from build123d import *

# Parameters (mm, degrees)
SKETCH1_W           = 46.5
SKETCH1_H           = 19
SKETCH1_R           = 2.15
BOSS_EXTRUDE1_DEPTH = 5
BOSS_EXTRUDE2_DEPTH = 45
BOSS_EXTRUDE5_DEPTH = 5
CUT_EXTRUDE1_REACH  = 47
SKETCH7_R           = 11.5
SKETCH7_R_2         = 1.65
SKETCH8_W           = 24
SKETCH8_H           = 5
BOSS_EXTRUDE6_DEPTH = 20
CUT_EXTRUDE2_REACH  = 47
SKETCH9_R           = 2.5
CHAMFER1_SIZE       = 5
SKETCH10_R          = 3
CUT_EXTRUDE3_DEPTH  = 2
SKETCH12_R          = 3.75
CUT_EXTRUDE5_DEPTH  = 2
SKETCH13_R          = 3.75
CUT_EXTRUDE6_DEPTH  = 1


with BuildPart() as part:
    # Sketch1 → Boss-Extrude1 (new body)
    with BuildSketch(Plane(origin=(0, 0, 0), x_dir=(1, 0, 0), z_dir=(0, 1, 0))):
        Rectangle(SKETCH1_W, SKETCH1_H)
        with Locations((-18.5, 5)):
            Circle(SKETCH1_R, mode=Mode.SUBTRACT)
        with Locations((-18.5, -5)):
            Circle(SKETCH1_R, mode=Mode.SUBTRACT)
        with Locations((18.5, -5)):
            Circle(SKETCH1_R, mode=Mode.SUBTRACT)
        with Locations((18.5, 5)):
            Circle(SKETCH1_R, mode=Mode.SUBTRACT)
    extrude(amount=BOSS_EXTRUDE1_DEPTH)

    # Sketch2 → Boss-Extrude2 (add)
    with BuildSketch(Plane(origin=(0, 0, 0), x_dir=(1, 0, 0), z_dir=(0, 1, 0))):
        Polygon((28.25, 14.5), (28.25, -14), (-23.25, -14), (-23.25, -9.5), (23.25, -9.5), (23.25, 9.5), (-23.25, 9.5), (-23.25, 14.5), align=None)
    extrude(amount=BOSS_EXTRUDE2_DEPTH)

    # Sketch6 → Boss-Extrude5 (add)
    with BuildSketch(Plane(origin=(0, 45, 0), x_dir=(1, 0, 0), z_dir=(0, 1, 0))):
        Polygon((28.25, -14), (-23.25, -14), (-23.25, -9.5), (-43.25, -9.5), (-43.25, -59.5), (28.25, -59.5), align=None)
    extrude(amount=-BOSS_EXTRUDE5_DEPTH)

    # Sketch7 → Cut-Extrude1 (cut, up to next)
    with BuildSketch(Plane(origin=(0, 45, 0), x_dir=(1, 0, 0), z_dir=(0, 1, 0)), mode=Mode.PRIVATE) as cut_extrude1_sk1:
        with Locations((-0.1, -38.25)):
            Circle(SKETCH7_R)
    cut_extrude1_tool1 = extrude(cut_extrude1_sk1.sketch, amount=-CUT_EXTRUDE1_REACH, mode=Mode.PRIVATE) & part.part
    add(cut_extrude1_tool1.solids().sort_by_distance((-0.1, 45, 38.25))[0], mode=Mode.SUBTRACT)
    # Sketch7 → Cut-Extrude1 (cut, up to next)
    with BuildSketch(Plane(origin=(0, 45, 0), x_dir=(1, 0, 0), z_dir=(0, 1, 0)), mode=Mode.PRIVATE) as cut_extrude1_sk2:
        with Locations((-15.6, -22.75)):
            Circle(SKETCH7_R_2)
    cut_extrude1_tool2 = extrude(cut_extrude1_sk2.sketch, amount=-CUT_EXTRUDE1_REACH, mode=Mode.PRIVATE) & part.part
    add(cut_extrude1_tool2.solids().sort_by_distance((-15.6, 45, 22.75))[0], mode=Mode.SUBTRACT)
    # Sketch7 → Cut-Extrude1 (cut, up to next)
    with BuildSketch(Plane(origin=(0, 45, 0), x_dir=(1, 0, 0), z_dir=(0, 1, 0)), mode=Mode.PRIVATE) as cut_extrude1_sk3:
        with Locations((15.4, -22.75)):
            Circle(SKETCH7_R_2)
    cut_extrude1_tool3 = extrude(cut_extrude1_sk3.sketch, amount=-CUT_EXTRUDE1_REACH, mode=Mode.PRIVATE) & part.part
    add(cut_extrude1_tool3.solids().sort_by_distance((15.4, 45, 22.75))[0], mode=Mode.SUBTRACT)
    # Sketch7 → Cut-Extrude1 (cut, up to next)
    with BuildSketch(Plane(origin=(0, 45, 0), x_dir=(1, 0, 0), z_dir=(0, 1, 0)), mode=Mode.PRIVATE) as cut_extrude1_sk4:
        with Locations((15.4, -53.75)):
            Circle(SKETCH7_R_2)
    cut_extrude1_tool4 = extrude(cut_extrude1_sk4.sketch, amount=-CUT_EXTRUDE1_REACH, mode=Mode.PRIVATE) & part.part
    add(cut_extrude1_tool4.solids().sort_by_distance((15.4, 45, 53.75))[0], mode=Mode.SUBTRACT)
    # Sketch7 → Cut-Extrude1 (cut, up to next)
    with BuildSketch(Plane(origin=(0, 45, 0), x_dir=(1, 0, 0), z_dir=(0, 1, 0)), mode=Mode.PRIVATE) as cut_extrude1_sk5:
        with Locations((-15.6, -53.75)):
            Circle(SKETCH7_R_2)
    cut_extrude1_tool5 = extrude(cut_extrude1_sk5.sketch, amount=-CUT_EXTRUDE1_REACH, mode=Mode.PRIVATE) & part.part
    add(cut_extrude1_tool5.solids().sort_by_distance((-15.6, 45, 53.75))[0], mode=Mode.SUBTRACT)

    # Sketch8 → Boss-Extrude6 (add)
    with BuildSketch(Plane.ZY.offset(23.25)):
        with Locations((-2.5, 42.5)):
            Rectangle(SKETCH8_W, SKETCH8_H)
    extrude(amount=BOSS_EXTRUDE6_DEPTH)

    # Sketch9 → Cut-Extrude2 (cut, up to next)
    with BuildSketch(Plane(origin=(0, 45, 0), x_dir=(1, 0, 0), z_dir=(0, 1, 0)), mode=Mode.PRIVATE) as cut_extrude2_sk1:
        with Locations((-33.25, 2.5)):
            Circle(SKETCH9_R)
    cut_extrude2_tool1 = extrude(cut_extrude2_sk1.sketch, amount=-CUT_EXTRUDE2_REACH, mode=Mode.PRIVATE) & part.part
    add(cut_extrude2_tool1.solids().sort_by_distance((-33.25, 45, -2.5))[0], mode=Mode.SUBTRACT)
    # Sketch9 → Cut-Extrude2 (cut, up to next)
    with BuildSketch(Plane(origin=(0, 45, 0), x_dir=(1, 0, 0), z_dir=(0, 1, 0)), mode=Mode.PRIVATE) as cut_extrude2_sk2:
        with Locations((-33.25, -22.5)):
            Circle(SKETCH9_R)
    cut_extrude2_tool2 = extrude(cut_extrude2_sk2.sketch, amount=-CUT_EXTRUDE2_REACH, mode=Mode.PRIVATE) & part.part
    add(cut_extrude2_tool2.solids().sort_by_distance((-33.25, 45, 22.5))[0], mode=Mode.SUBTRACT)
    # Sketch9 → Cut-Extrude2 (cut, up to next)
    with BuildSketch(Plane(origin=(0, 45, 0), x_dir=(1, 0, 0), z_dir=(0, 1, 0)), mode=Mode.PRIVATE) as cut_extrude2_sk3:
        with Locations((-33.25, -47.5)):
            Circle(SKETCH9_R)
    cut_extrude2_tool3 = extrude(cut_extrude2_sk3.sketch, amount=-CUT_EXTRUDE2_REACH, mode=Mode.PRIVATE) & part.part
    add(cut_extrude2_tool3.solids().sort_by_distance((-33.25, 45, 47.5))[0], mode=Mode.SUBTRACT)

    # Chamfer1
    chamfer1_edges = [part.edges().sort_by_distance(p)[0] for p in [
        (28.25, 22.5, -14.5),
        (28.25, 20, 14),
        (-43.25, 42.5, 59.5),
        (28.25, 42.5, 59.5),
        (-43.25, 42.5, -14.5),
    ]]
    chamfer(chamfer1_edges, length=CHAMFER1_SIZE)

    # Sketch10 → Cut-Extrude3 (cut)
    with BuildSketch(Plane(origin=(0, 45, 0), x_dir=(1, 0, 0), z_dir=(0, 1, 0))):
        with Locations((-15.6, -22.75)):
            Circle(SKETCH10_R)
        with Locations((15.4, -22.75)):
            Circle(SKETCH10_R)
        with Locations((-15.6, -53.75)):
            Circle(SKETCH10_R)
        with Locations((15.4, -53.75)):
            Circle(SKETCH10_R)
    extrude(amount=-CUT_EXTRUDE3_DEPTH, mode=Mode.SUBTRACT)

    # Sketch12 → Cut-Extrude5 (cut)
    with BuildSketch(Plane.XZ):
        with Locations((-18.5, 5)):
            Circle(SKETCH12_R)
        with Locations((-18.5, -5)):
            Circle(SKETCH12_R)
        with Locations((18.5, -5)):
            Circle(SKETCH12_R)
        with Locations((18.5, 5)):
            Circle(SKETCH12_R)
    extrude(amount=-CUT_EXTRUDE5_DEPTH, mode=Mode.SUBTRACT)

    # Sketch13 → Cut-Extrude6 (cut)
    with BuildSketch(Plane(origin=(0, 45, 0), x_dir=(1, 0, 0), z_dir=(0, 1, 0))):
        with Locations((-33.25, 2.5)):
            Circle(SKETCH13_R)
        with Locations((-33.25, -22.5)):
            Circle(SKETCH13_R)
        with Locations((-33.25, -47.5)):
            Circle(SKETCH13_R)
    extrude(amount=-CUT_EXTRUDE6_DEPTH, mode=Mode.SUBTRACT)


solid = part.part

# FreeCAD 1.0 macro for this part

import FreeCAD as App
import Part
import Sketcher
from FreeCAD import Vector


def edges_at(feature, points):
    """Names of the edges that pass closest to the given points."""
    edges = feature.Shape.Edges
    near = lambda p: min(range(len(edges)), key=lambda i: edges[i].distToShape(Part.Vertex(*p))[0])
    return sorted({f"Edge{near(p) + 1}" for p in points})

doc = App.newDocument("Part")
body = doc.addObject("PartDesign::Body", "Body")

# Sketch on XZ plane
sketch1 = body.newObject("Sketcher::SketchObject", "Sketch")
sketch1.AttachmentSupport = (doc.getObject("XZ_Plane"), [""])
sketch1.MapMode = "FlatFace"
sketch1.addGeometry([
    Part.LineSegment(Vector(-23.2, -9.5, 0), Vector(-23.2, 9.5, 0)),  # 0
    Part.LineSegment(Vector(-23.2, 9.5, 0), Vector(23.2, 9.5, 0)),  # 1
    Part.LineSegment(Vector(23.2, 9.5, 0), Vector(23.2, -9.5, 0)),  # 2
    Part.LineSegment(Vector(23.2, -9.5, 0), Vector(-23.2, -9.5, 0)),  # 3
    Part.Circle(Vector(-18.5, 5, 0), Vector(0, 0, 1), 2.1),  # 4
    Part.Circle(Vector(18.5, 5, 0), Vector(0, 0, 1), 2.1),  # 5
    Part.Circle(Vector(-18.5, -5, 0), Vector(0, 0, 1), 2.1),  # 6
    Part.Circle(Vector(18.5, -5, 0), Vector(0, 0, 1), 2.1),  # 7
], False)
sketch1.addConstraint([
    Sketcher.Constraint("Coincident", 0, 2, 1, 1),
    Sketcher.Constraint("Coincident", 1, 2, 2, 1),
    Sketcher.Constraint("Coincident", 2, 2, 3, 1),
    Sketcher.Constraint("Coincident", 3, 2, 0, 1),
    Sketcher.Constraint("Vertical", 0),
    Sketcher.Constraint("Horizontal", 1),
    Sketcher.Constraint("Vertical", 2),
    Sketcher.Constraint("Horizontal", 3),
    Sketcher.Constraint("Equal", 4, 5),
    Sketcher.Constraint("Equal", 5, 6),
    Sketcher.Constraint("Equal", 6, 7),
    Sketcher.Constraint("Symmetric", 5, 3, 6, 3, -1, 1),
    Sketcher.Constraint("Symmetric", 4, 3, 7, 3, -1, 1),
    Sketcher.Constraint("Symmetric", 0, 2, 2, 2, -1, 1),
    Sketcher.Constraint("Symmetric", 4, 3, 5, 3, -2),
    Sketcher.Constraint("Diameter", 4, 4.3),
    Sketcher.Constraint("DistanceY", 0, 1, 0, 2, 19.0),
    Sketcher.Constraint("DistanceX", 1, 1, 1, 2, 46.5),
    Sketcher.Constraint("DistanceY", -1, 1, 4, 3, 5.0),
    Sketcher.Constraint("DistanceX", 4, 3, 5, 3, 37.0),
])
pad1 = body.newObject("PartDesign::Pad", "Pad")
pad1.Profile = sketch1
pad1.Length = 5
pad1.Reversed = True

# Sketch on XZ plane
sketch2 = body.newObject("Sketcher::SketchObject", "Sketch001")
sketch2.AttachmentSupport = (doc.getObject("XZ_Plane"), [""])
sketch2.MapMode = "FlatFace"
sketch2.addGeometry([
    Part.LineSegment(Vector(28.2, 14, 0), Vector(28.2, -14.5, 0)),  # 0
    Part.LineSegment(Vector(28.2, -14.5, 0), Vector(-23.2, -14.5, 0)),  # 1
    Part.LineSegment(Vector(-23.2, -14.5, 0), Vector(-23.2, -9.5, 0)),  # 2
    Part.LineSegment(Vector(-23.2, -9.5, 0), Vector(23.2, -9.5, 0)),  # 3
    Part.LineSegment(Vector(23.2, -9.5, 0), Vector(23.2, 9.5, 0)),  # 4
    Part.LineSegment(Vector(23.2, 9.5, 0), Vector(-23.2, 9.5, 0)),  # 5
    Part.LineSegment(Vector(-23.2, 9.5, 0), Vector(-23.2, 14, 0)),  # 6
    Part.LineSegment(Vector(-23.2, 14, 0), Vector(28.2, 14, 0)),  # 7
], False)
sketch2.addConstraint([
    Sketcher.Constraint("Coincident", 0, 2, 1, 1),
    Sketcher.Constraint("Coincident", 1, 2, 2, 1),
    Sketcher.Constraint("Coincident", 2, 2, 3, 1),
    Sketcher.Constraint("Coincident", 3, 2, 4, 1),
    Sketcher.Constraint("Coincident", 4, 2, 5, 1),
    Sketcher.Constraint("Coincident", 5, 2, 6, 1),
    Sketcher.Constraint("Coincident", 6, 2, 7, 1),
    Sketcher.Constraint("Coincident", 7, 2, 0, 1),
    Sketcher.Constraint("Vertical", 0),
    Sketcher.Constraint("Horizontal", 1),
    Sketcher.Constraint("Vertical", 2),
    Sketcher.Constraint("Horizontal", 3),
    Sketcher.Constraint("Vertical", 4),
    Sketcher.Constraint("Horizontal", 5),
    Sketcher.Constraint("Vertical", 6),
    Sketcher.Constraint("Horizontal", 7),
    Sketcher.Constraint("Symmetric", 2, 2, 4, 2, -1, 1),
    Sketcher.Constraint("Vertical", 2, 2, 5, 2),
    Sketcher.Constraint("DistanceY", 2, 1, 2, 2, 5.0),
    Sketcher.Constraint("DistanceY", 4, 1, 4, 2, 19.0),
    Sketcher.Constraint("DistanceX", 1, 2, 1, 1, 51.5),
    Sketcher.Constraint("DistanceX", 3, 1, 3, 2, 46.5),
    Sketcher.Constraint("DistanceY", 0, 2, 0, 1, 28.5),
])
pad2 = body.newObject("PartDesign::Pad", "Pad001")
pad2.Profile = sketch2
pad2.Length = 45
pad2.Reversed = True

# Sketch on XZ plane
sketch3 = body.newObject("Sketcher::SketchObject", "Sketch002")
sketch3.AttachmentSupport = (doc.getObject("XZ_Plane"), [""])
sketch3.MapMode = "FlatFace"
sketch3.AttachmentOffset = App.Placement(Vector(0, 0, -45), App.Rotation())
sketch3.addGeometry([
    Part.LineSegment(Vector(28.2, 14, 0), Vector(-23.2, 14, 0)),  # 0
    Part.LineSegment(Vector(-23.2, 14, 0), Vector(-23.2, 9.5, 0)),  # 1
    Part.LineSegment(Vector(-23.2, 9.5, 0), Vector(-43.2, 9.5, 0)),  # 2
    Part.LineSegment(Vector(-43.2, 9.5, 0), Vector(-43.2, 59.5, 0)),  # 3
    Part.LineSegment(Vector(-43.2, 59.5, 0), Vector(28.2, 59.5, 0)),  # 4
    Part.LineSegment(Vector(28.2, 59.5, 0), Vector(28.2, 14, 0)),  # 5
], False)
sketch3.addConstraint([
    Sketcher.Constraint("Coincident", 0, 2, 1, 1),
    Sketcher.Constraint("Coincident", 1, 2, 2, 1),
    Sketcher.Constraint("Coincident", 2, 2, 3, 1),
    Sketcher.Constraint("Coincident", 3, 2, 4, 1),
    Sketcher.Constraint("Coincident", 4, 2, 5, 1),
    Sketcher.Constraint("Coincident", 5, 2, 0, 1),
    Sketcher.Constraint("Horizontal", 0),
    Sketcher.Constraint("Vertical", 1),
    Sketcher.Constraint("Horizontal", 2),
    Sketcher.Constraint("Vertical", 3),
    Sketcher.Constraint("Horizontal", 4),
    Sketcher.Constraint("Vertical", 5),
    Sketcher.Constraint("DistanceX", 2, 2, 2, 1, 20.0),
    Sketcher.Constraint("DistanceY", 3, 1, 3, 2, 50.0),
    Sketcher.Constraint("DistanceX", 0, 2, 0, 1, 51.5),
    Sketcher.Constraint("DistanceY", 1, 2, 1, 1, 4.5),
    Sketcher.Constraint("DistanceY", -1, 1, 0, 2, 14.0),
    Sketcher.Constraint("DistanceX", 0, 2, -1, 1, 23.25),
])
pad3 = body.newObject("PartDesign::Pad", "Pad002")
pad3.Profile = sketch3
pad3.Length = 5

# Sketch on XZ plane
sketch4 = body.newObject("Sketcher::SketchObject", "Sketch003")
sketch4.AttachmentSupport = (doc.getObject("XZ_Plane"), [""])
sketch4.MapMode = "FlatFace"
sketch4.AttachmentOffset = App.Placement(Vector(0, 0, -45), App.Rotation())
sketch4.addGeometry(Part.Circle(Vector(0, 38, 0), Vector(0, 0, 1), 12), False)
sketch4.addConstraint([
    Sketcher.Constraint("Diameter", 0, 23.0),
    Sketcher.Constraint("DistanceX", 0, 3, -1, 1, 0.1),
    Sketcher.Constraint("DistanceY", -1, 1, 0, 3, 38.25),
])
pocket1 = body.newObject("PartDesign::Pocket", "Pocket")
pocket1.Profile = sketch4
pocket1.Type = "UpToFirst"
pocket1.Reversed = True

# Sketch on XZ plane
sketch5 = body.newObject("Sketcher::SketchObject", "Sketch004")
sketch5.AttachmentSupport = (doc.getObject("XZ_Plane"), [""])
sketch5.MapMode = "FlatFace"
sketch5.AttachmentOffset = App.Placement(Vector(0, 0, -45), App.Rotation())
sketch5.addGeometry(Part.Circle(Vector(-15.6, 22.8, 0), Vector(0, 0, 1), 1.6), False)
sketch5.addConstraint([
    Sketcher.Constraint("Diameter", 0, 3.3),
    Sketcher.Constraint("DistanceX", 0, 3, -1, 1, 15.6),
    Sketcher.Constraint("DistanceY", -1, 1, 0, 3, 22.75),
])
pocket2 = body.newObject("PartDesign::Pocket", "Pocket001")
pocket2.Profile = sketch5
pocket2.Type = "UpToFirst"
pocket2.Reversed = True

# Sketch on XZ plane
sketch6 = body.newObject("Sketcher::SketchObject", "Sketch005")
sketch6.AttachmentSupport = (doc.getObject("XZ_Plane"), [""])
sketch6.MapMode = "FlatFace"
sketch6.AttachmentOffset = App.Placement(Vector(0, 0, -45), App.Rotation())
sketch6.addGeometry(Part.Circle(Vector(15.4, 22.8, 0), Vector(0, 0, 1), 1.6), False)
sketch6.addConstraint([
    Sketcher.Constraint("Diameter", 0, 3.3),
    Sketcher.Constraint("DistanceX", -1, 1, 0, 3, 15.4),
    Sketcher.Constraint("DistanceY", -1, 1, 0, 3, 22.75),
])
pocket3 = body.newObject("PartDesign::Pocket", "Pocket002")
pocket3.Profile = sketch6
pocket3.Type = "UpToFirst"
pocket3.Reversed = True

# Sketch on XZ plane
sketch7 = body.newObject("Sketcher::SketchObject", "Sketch006")
sketch7.AttachmentSupport = (doc.getObject("XZ_Plane"), [""])
sketch7.MapMode = "FlatFace"
sketch7.AttachmentOffset = App.Placement(Vector(0, 0, -45), App.Rotation())
sketch7.addGeometry(Part.Circle(Vector(15.4, 53.8, 0), Vector(0, 0, 1), 1.6), False)
sketch7.addConstraint([
    Sketcher.Constraint("Diameter", 0, 3.3),
    Sketcher.Constraint("DistanceX", -1, 1, 0, 3, 15.4),
    Sketcher.Constraint("DistanceY", -1, 1, 0, 3, 53.75),
])
pocket4 = body.newObject("PartDesign::Pocket", "Pocket003")
pocket4.Profile = sketch7
pocket4.Type = "UpToFirst"
pocket4.Reversed = True

# Sketch on XZ plane
sketch8 = body.newObject("Sketcher::SketchObject", "Sketch007")
sketch8.AttachmentSupport = (doc.getObject("XZ_Plane"), [""])
sketch8.MapMode = "FlatFace"
sketch8.AttachmentOffset = App.Placement(Vector(0, 0, -45), App.Rotation())
sketch8.addGeometry(Part.Circle(Vector(-15.6, 53.8, 0), Vector(0, 0, 1), 1.6), False)
sketch8.addConstraint([
    Sketcher.Constraint("Diameter", 0, 3.3),
    Sketcher.Constraint("DistanceX", 0, 3, -1, 1, 15.6),
    Sketcher.Constraint("DistanceY", -1, 1, 0, 3, 53.75),
])
pocket5 = body.newObject("PartDesign::Pocket", "Pocket004")
pocket5.Profile = sketch8
pocket5.Type = "UpToFirst"
pocket5.Reversed = True

# Sketch on YZ plane
sketch9 = body.newObject("Sketcher::SketchObject", "Sketch008")
sketch9.AttachmentSupport = (doc.getObject("YZ_Plane"), [""])
sketch9.MapMode = "FlatFace"
sketch9.AttachmentOffset = App.Placement(Vector(0, 0, -23.25), App.Rotation())
sketch9.addGeometry([
    Part.LineSegment(Vector(45, -14, 0), Vector(40, -14, 0)),
    Part.LineSegment(Vector(40, -14, 0), Vector(40, 10, 0)),
    Part.LineSegment(Vector(40, 10, 0), Vector(45, 10, 0)),
    Part.LineSegment(Vector(45, 10, 0), Vector(45, -14, 0)),
], False)
sketch9.addConstraint([
    Sketcher.Constraint("Coincident", 0, 2, 1, 1),
    Sketcher.Constraint("Coincident", 1, 2, 2, 1),
    Sketcher.Constraint("Coincident", 2, 2, 3, 1),
    Sketcher.Constraint("Coincident", 3, 2, 0, 1),
    Sketcher.Constraint("Horizontal", 0),
    Sketcher.Constraint("Vertical", 1),
    Sketcher.Constraint("Horizontal", 2),
    Sketcher.Constraint("Vertical", 3),
    Sketcher.Constraint("DistanceX", 0, 2, 0, 1, 5.0),
    Sketcher.Constraint("DistanceY", 1, 1, 1, 2, 24.0),
    Sketcher.Constraint("DistanceX", -1, 1, 0, 2, 40.0),
    Sketcher.Constraint("DistanceY", 0, 2, -1, 1, 14.5),
])
pad4 = body.newObject("PartDesign::Pad", "Pad003")
pad4.Profile = sketch9
pad4.Length = 20
pad4.Reversed = True

# Sketch on XZ plane
sketch10 = body.newObject("Sketcher::SketchObject", "Sketch009")
sketch10.AttachmentSupport = (doc.getObject("XZ_Plane"), [""])
sketch10.MapMode = "FlatFace"
sketch10.AttachmentOffset = App.Placement(Vector(0, 0, -45), App.Rotation())
sketch10.addGeometry(Part.Circle(Vector(-33.2, -2.5, 0), Vector(0, 0, 1), 2.5), False)
sketch10.addConstraint([
    Sketcher.Constraint("Diameter", 0, 5.0),
    Sketcher.Constraint("DistanceY", 0, 3, -1, 1, 2.5),
    Sketcher.Constraint("DistanceX", 0, 3, -1, 1, 33.25),
])
pocket6 = body.newObject("PartDesign::Pocket", "Pocket005")
pocket6.Profile = sketch10
pocket6.Type = "UpToFirst"
pocket6.Reversed = True

# Sketch on XZ plane
sketch11 = body.newObject("Sketcher::SketchObject", "Sketch010")
sketch11.AttachmentSupport = (doc.getObject("XZ_Plane"), [""])
sketch11.MapMode = "FlatFace"
sketch11.AttachmentOffset = App.Placement(Vector(0, 0, -45), App.Rotation())
sketch11.addGeometry(Part.Circle(Vector(-33.2, 22.5, 0), Vector(0, 0, 1), 2.5), False)
sketch11.addConstraint([
    Sketcher.Constraint("Diameter", 0, 5.0),
    Sketcher.Constraint("DistanceY", -1, 1, 0, 3, 22.5),
    Sketcher.Constraint("DistanceX", 0, 3, -1, 1, 33.25),
])
pocket7 = body.newObject("PartDesign::Pocket", "Pocket006")
pocket7.Profile = sketch11
pocket7.Type = "UpToFirst"
pocket7.Reversed = True

# Sketch on XZ plane
sketch12 = body.newObject("Sketcher::SketchObject", "Sketch011")
sketch12.AttachmentSupport = (doc.getObject("XZ_Plane"), [""])
sketch12.MapMode = "FlatFace"
sketch12.AttachmentOffset = App.Placement(Vector(0, 0, -45), App.Rotation())
sketch12.addGeometry(Part.Circle(Vector(-33.2, 47.5, 0), Vector(0, 0, 1), 2.5), False)
sketch12.addConstraint([
    Sketcher.Constraint("Diameter", 0, 5.0),
    Sketcher.Constraint("DistanceY", -1, 1, 0, 3, 47.5),
    Sketcher.Constraint("DistanceX", 0, 3, -1, 1, 33.25),
])
pocket8 = body.newObject("PartDesign::Pocket", "Pocket007")
pocket8.Profile = sketch12
pocket8.Type = "UpToFirst"
pocket8.Reversed = True
doc.recompute()

chamfer = body.newObject("PartDesign::Chamfer", "Chamfer")
chamfer.Base = (pocket8, edges_at(pocket8, [
    (28.25, 22.5, -14.5),
    (28.25, 20, 14),
    (-43.25, 42.5, 59.5),
    (28.25, 42.5, 59.5),
    (-43.25, 42.5, -14.5),
]))
chamfer.Size = 5

# Sketch on XZ plane
sketch13 = body.newObject("Sketcher::SketchObject", "Sketch012")
sketch13.AttachmentSupport = (doc.getObject("XZ_Plane"), [""])
sketch13.MapMode = "FlatFace"
sketch13.AttachmentOffset = App.Placement(Vector(0, 0, -45), App.Rotation())
sketch13.addGeometry([
    Part.Circle(Vector(-15.6, 22.8, 0), Vector(0, 0, 1), 3),
    Part.Circle(Vector(15.4, 22.8, 0), Vector(0, 0, 1), 3),
    Part.Circle(Vector(-15.6, 53.8, 0), Vector(0, 0, 1), 3),
    Part.Circle(Vector(15.4, 53.8, 0), Vector(0, 0, 1), 3),
], False)
sketch13.addConstraint([
    Sketcher.Constraint("Equal", 0, 1),
    Sketcher.Constraint("Equal", 1, 2),
    Sketcher.Constraint("Equal", 2, 3),
    Sketcher.Constraint("Horizontal", 0, 3, 1, 3),
    Sketcher.Constraint("Horizontal", 2, 3, 3, 3),
    Sketcher.Constraint("Vertical", 0, 3, 2, 3),
    Sketcher.Constraint("Vertical", 1, 3, 3, 3),
    Sketcher.Constraint("Diameter", 0, 6.0),
    Sketcher.Constraint("DistanceX", 0, 3, 1, 3, 31.0),
    Sketcher.Constraint("DistanceY", 0, 3, 2, 3, 31.0),
    Sketcher.Constraint("DistanceX", 0, 3, -1, 1, 15.6),
    Sketcher.Constraint("DistanceY", -1, 1, 0, 3, 22.75),
])
pocket9 = body.newObject("PartDesign::Pocket", "Pocket008")
pocket9.Profile = sketch13
pocket9.Length = 2
pocket9.Reversed = True

# Sketch on XZ plane
sketch14 = body.newObject("Sketcher::SketchObject", "Sketch013")
sketch14.AttachmentSupport = (doc.getObject("XZ_Plane"), [""])
sketch14.MapMode = "FlatFace"
sketch14.addGeometry([
    Part.Circle(Vector(-18.5, 5, 0), Vector(0, 0, 1), 3.8),
    Part.Circle(Vector(-18.5, -5, 0), Vector(0, 0, 1), 3.8),
    Part.Circle(Vector(18.5, -5, 0), Vector(0, 0, 1), 3.8),
    Part.Circle(Vector(18.5, 5, 0), Vector(0, 0, 1), 3.8),
], False)
sketch14.addConstraint([
    Sketcher.Constraint("Equal", 0, 1),
    Sketcher.Constraint("Equal", 1, 2),
    Sketcher.Constraint("Equal", 2, 3),
    Sketcher.Constraint("Symmetric", 0, 3, 2, 3, -1, 1),
    Sketcher.Constraint("Symmetric", 1, 3, 3, 3, -1, 1),
    Sketcher.Constraint("Symmetric", 1, 3, 2, 3, -2),
    Sketcher.Constraint("Diameter", 0, 7.5),
    Sketcher.Constraint("DistanceY", -1, 1, 0, 3, 5.0),
    Sketcher.Constraint("DistanceX", 1, 3, 2, 3, 37.0),
])
pocket10 = body.newObject("PartDesign::Pocket", "Pocket009")
pocket10.Profile = sketch14
pocket10.Length = 2

# Sketch on XZ plane
sketch15 = body.newObject("Sketcher::SketchObject", "Sketch014")
sketch15.AttachmentSupport = (doc.getObject("XZ_Plane"), [""])
sketch15.MapMode = "FlatFace"
sketch15.AttachmentOffset = App.Placement(Vector(0, 0, -45), App.Rotation())
sketch15.addGeometry([
    Part.Circle(Vector(-33.2, -2.5, 0), Vector(0, 0, 1), 3.8),
    Part.Circle(Vector(-33.2, 22.5, 0), Vector(0, 0, 1), 3.8),
    Part.Circle(Vector(-33.2, 47.5, 0), Vector(0, 0, 1), 3.8),
], False)
sketch15.addConstraint([
    Sketcher.Constraint("Equal", 0, 1),
    Sketcher.Constraint("Equal", 1, 2),
    Sketcher.Constraint("Vertical", 0, 3, 1, 3),
    Sketcher.Constraint("Vertical", 1, 3, 2, 3),
    Sketcher.Constraint("Diameter", 0, 7.5),
    Sketcher.Constraint("DistanceY", 0, 3, 1, 3, 25.0),
    Sketcher.Constraint("DistanceY", 1, 3, 2, 3, 25.0),
    Sketcher.Constraint("DistanceY", 0, 3, -1, 1, 2.5),
    Sketcher.Constraint("DistanceX", 0, 3, -1, 1, 33.25),
])
pocket11 = body.newObject("PartDesign::Pocket", "Pocket010")
pocket11.Profile = sketch15
pocket11.Length = 1
pocket11.Reversed = True

doc.recompute()
